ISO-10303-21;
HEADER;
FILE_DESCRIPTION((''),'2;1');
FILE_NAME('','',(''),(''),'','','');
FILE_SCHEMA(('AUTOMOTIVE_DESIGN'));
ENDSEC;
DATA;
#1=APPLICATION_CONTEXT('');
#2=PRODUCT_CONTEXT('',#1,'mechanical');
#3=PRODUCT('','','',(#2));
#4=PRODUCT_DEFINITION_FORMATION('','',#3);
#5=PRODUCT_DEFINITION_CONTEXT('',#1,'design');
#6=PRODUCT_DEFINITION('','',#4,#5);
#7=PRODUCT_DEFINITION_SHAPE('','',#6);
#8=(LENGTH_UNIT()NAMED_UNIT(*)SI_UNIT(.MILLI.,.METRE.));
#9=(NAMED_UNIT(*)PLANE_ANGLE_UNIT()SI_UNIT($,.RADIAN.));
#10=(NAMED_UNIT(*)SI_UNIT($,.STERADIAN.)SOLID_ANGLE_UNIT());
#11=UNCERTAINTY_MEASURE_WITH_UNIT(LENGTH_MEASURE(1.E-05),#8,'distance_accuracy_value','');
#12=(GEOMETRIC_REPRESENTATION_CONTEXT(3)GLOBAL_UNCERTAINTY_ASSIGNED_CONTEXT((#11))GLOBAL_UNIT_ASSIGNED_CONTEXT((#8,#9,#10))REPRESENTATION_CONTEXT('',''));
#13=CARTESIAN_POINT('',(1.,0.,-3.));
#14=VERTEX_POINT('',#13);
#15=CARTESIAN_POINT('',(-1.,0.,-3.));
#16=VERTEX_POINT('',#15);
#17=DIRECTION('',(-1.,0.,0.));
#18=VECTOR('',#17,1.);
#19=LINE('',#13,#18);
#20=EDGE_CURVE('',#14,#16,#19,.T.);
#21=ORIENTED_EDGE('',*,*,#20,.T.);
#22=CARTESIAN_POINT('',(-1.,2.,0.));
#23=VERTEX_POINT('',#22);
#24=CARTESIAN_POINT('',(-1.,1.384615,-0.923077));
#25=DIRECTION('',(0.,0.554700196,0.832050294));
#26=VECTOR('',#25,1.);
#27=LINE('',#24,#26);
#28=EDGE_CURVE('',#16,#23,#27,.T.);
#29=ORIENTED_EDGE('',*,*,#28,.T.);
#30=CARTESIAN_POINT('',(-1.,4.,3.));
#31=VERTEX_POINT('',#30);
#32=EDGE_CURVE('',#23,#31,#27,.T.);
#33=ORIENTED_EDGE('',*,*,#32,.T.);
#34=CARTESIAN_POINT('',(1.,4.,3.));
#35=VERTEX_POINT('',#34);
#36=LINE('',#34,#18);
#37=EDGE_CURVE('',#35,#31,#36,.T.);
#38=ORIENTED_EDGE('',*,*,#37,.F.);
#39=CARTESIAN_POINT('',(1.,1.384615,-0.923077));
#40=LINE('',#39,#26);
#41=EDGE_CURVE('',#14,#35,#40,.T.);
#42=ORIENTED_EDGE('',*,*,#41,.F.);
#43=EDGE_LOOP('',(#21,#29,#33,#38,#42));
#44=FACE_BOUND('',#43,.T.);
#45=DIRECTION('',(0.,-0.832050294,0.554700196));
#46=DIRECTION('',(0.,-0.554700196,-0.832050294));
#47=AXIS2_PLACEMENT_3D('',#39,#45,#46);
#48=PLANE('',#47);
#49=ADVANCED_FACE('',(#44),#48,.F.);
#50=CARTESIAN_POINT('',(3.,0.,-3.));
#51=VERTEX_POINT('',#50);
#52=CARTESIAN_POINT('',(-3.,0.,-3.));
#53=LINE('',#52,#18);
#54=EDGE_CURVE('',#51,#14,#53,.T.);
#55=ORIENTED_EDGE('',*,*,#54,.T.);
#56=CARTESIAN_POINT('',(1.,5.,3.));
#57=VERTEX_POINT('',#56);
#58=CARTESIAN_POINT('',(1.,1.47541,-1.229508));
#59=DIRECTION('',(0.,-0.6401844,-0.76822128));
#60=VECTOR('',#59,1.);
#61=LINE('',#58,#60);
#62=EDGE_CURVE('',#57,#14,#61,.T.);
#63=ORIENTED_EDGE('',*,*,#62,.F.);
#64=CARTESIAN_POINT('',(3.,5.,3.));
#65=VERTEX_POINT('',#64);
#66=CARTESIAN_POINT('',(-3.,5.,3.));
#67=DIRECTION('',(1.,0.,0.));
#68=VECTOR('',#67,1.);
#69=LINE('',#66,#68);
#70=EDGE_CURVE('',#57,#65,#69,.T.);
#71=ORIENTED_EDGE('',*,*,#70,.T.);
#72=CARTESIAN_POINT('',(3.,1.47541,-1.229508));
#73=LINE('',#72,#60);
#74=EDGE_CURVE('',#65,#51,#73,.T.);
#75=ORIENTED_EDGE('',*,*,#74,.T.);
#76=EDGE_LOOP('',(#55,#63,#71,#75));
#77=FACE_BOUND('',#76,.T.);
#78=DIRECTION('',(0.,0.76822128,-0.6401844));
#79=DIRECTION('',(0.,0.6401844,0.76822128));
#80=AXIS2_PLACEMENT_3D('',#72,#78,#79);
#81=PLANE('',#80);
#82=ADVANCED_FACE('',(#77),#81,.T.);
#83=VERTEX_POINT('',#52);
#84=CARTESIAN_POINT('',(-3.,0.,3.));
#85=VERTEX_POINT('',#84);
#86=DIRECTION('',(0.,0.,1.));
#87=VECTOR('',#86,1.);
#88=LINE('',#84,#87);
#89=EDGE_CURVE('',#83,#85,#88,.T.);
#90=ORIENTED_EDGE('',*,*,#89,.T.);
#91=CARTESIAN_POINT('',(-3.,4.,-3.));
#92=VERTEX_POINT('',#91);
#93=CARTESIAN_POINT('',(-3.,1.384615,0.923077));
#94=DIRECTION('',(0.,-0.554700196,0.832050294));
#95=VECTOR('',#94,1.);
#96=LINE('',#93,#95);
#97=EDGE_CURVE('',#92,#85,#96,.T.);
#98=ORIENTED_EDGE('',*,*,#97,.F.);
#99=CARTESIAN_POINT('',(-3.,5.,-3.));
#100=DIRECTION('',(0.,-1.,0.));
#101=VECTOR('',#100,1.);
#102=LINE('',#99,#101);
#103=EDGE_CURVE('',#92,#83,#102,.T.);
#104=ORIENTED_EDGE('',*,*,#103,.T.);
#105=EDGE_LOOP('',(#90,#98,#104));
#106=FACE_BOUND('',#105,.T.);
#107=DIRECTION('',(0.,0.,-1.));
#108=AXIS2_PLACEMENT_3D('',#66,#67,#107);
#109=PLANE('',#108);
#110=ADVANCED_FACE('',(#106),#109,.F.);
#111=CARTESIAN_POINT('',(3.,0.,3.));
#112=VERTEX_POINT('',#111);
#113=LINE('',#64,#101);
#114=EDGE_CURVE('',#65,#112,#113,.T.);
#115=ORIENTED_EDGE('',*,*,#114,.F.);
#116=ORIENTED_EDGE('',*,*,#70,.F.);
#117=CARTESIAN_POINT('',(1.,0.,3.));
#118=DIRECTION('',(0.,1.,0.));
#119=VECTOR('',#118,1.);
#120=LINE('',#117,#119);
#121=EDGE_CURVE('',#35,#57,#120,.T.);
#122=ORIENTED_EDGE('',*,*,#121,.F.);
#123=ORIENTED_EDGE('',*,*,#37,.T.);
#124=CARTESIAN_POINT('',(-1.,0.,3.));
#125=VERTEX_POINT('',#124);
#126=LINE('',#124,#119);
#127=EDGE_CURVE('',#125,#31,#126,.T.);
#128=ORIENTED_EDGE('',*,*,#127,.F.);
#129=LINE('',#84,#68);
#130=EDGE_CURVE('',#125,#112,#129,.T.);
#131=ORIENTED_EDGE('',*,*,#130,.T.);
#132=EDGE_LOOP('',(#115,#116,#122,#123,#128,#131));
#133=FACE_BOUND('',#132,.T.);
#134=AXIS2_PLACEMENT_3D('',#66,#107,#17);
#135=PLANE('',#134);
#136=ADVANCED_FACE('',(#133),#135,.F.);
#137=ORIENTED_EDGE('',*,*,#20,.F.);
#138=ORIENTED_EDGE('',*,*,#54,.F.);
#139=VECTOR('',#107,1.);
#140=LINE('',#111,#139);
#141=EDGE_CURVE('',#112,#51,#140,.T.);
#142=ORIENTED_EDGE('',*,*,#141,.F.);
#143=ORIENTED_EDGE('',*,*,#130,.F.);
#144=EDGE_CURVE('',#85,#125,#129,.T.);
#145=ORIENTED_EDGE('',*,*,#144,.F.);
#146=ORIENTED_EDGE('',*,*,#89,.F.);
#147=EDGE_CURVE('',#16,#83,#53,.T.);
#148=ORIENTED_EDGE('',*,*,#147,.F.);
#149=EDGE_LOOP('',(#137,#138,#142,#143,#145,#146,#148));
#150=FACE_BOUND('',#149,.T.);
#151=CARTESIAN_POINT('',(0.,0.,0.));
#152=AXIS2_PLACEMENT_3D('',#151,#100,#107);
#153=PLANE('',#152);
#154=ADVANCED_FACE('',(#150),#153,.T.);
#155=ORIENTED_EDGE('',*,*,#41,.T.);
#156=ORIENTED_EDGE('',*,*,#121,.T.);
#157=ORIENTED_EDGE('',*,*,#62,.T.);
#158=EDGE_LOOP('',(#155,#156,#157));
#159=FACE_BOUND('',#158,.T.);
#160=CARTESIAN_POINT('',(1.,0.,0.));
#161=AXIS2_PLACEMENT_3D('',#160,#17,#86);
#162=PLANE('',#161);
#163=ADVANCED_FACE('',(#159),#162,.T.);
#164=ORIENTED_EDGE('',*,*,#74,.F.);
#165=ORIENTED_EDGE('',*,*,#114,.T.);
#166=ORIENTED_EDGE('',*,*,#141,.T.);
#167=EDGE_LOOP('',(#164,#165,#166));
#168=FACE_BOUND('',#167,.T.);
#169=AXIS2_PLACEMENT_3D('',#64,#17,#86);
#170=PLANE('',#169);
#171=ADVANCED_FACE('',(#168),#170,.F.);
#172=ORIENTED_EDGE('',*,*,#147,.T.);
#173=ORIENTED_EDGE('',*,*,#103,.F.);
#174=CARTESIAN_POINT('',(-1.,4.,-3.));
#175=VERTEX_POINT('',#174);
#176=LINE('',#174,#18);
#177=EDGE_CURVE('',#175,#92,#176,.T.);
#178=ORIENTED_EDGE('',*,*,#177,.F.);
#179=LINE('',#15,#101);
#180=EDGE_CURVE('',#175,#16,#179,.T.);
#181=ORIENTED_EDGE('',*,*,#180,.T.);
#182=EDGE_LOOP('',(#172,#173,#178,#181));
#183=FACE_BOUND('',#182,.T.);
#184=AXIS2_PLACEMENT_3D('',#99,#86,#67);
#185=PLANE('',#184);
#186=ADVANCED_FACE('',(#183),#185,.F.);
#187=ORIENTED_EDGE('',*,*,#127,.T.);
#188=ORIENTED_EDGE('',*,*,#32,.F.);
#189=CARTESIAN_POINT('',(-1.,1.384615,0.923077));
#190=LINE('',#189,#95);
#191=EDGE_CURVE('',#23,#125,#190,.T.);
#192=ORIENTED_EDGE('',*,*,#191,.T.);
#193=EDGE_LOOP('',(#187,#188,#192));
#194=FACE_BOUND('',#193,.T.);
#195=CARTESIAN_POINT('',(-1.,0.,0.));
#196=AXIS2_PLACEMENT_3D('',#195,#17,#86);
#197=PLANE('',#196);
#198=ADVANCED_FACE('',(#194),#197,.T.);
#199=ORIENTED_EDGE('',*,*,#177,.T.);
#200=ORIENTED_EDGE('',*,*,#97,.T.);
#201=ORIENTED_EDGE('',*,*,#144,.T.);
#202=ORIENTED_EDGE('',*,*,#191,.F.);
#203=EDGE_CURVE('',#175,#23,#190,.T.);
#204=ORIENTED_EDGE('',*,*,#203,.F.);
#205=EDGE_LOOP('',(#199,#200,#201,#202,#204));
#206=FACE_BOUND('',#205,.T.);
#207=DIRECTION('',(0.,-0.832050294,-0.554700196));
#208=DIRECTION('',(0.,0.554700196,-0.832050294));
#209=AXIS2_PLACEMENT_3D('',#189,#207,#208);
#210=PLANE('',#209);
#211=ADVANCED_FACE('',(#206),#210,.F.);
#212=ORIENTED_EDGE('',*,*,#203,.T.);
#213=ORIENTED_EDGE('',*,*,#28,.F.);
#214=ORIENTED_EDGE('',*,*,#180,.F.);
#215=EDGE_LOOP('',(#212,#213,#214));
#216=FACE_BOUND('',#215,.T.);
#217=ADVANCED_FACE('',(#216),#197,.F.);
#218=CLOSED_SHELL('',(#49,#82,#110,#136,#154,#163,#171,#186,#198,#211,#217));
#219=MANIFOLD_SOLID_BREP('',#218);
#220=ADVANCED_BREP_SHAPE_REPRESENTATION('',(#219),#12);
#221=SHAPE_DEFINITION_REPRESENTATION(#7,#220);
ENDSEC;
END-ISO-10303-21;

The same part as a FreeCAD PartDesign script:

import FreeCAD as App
import Part
import Sketcher


def add_polygon(sketch, points):
    """Adds a closed chain of lines whose ends are joined by coincident constraints."""
    first, n = sketch.GeometryCount, len(points)
    for a, b in zip(points, points[1:] + points[:1]):
        sketch.addGeometry(Part.LineSegment(App.Vector(*a, 0), App.Vector(*b, 0)), False)
    for i in range(n):
        sketch.addConstraint(Sketcher.Constraint("Coincident", first + i, 2, first + (i + 1) % n, 1))

doc = App.newDocument("Part")
body = doc.addObject("PartDesign::Body", "Body")

sketch1 = doc.addObject("Sketcher::SketchObject", "Sketch")
body.addObject(sketch1)
sketch1.AttachmentSupport = (doc.XZ_Plane, [""])
sketch1.MapMode = "FlatFace"
add_polygon(sketch1, [(-3, -3), (-3, 3), (3, 3), (3, -3)])
sketch1.addConstraint([
    Sketcher.Constraint("Vertical", 0),
    Sketcher.Constraint("Horizontal", 1),
    Sketcher.Constraint("Vertical", 2),
    Sketcher.Constraint("Horizontal", 3),
    Sketcher.Constraint("Symmetric", 0, 2, 2, 2, -1, 1),
    Sketcher.Constraint("Equal", 3, 0),
    Sketcher.Constraint("DistanceX", 1, 1, 1, 2, 6.0),
])
pad1 = doc.addObject("PartDesign::Pad", "Pad")
body.addObject(pad1)
pad1.Profile = sketch1
pad1.Length = 5
pad1.Reversed = True

sketch2 = doc.addObject("Sketcher::SketchObject", "Sketch001")
body.addObject(sketch2)
sketch2.AttachmentSupport = (doc.YZ_Plane, [""])
sketch2.MapMode = "FlatFace"
sketch2.AttachmentOffset = App.Placement(App.Vector(0, 0, -3), App.Rotation())
add_polygon(sketch2, [(5, 3), (5, -3), (4, -3), (0, 3)])
sketch2.addConstraint([
    Sketcher.Constraint("Vertical", 0),
    Sketcher.Constraint("Horizontal", 1),
    Sketcher.Constraint("Horizontal", 3),
    Sketcher.Constraint("PointOnObject", 2, 2, -2),
    Sketcher.Constraint("DistanceX", 1, 2, 1, 1, 1.0),
    Sketcher.Constraint("DistanceX", 3, 1, 3, 2, 5.0),
    Sketcher.Constraint("DistanceY", 0, 2, 0, 1, 6.0),
    Sketcher.Constraint("DistanceY", 0, 2, -1, 1, 3.0),
])
pocket1 = doc.addObject("PartDesign::Pocket", "Pocket")
body.addObject(pocket1)
pocket1.Profile = sketch2
pocket1.Length = 2
pocket1.Reversed = True

sketch3 = doc.addObject("Sketcher::SketchObject", "Sketch002")
body.addObject(sketch3)
sketch3.AttachmentSupport = (doc.YZ_Plane, [""])
sketch3.MapMode = "FlatFace"
sketch3.AttachmentOffset = App.Placement(App.Vector(0, 0, -1), App.Rotation())
add_polygon(sketch3, [(0, -3), (4, 3), (5, 3), (5, -3)])
sketch3.addConstraint([
    Sketcher.Constraint("Horizontal", 1),
    Sketcher.Constraint("Vertical", 2),
    Sketcher.Constraint("Horizontal", 3),
    Sketcher.Constraint("PointOnObject", 3, 2, -2),
    Sketcher.Constraint("DistanceX", 1, 1, 1, 2, 1.0),
    Sketcher.Constraint("DistanceX", 3, 2, 3, 1, 5.0),
    Sketcher.Constraint("DistanceY", 2, 2, 2, 1, 6.0),
    Sketcher.Constraint("DistanceY", -1, 1, 0, 2, 3.0),
])
pocket2 = doc.addObject("PartDesign::Pocket", "Pocket001")
body.addObject(pocket2)
pocket2.Profile = sketch3
pocket2.Length = 2
pocket2.Reversed = True

sketch4 = doc.addObject("Sketcher::SketchObject", "Sketch003")
body.addObject(sketch4)
sketch4.AttachmentSupport = (doc.YZ_Plane, [""])
sketch4.MapMode = "FlatFace"
sketch4.AttachmentOffset = App.Placement(App.Vector(0, 0, 1), App.Rotation())
add_polygon(sketch4, [(0, -3), (5, 3), (5, -3)])
sketch4.addConstraint([
    Sketcher.Constraint("Vertical", 1),
    Sketcher.Constraint("Horizontal", 2),
    Sketcher.Constraint("PointOnObject", 2, 2, -2),
    Sketcher.Constraint("DistanceX", 2, 2, 2, 1, 5.0),
    Sketcher.Constraint("DistanceY", 1, 2, 1, 1, 6.0),
    Sketcher.Constraint("DistanceY", -1, 1, 0, 2, 3.0),
])
pocket3 = doc.addObject("PartDesign::Pocket", "Pocket002")
body.addObject(pocket3)
pocket3.Profile = sketch4
pocket3.Length = 2
pocket3.Reversed = True

doc.recompute()
